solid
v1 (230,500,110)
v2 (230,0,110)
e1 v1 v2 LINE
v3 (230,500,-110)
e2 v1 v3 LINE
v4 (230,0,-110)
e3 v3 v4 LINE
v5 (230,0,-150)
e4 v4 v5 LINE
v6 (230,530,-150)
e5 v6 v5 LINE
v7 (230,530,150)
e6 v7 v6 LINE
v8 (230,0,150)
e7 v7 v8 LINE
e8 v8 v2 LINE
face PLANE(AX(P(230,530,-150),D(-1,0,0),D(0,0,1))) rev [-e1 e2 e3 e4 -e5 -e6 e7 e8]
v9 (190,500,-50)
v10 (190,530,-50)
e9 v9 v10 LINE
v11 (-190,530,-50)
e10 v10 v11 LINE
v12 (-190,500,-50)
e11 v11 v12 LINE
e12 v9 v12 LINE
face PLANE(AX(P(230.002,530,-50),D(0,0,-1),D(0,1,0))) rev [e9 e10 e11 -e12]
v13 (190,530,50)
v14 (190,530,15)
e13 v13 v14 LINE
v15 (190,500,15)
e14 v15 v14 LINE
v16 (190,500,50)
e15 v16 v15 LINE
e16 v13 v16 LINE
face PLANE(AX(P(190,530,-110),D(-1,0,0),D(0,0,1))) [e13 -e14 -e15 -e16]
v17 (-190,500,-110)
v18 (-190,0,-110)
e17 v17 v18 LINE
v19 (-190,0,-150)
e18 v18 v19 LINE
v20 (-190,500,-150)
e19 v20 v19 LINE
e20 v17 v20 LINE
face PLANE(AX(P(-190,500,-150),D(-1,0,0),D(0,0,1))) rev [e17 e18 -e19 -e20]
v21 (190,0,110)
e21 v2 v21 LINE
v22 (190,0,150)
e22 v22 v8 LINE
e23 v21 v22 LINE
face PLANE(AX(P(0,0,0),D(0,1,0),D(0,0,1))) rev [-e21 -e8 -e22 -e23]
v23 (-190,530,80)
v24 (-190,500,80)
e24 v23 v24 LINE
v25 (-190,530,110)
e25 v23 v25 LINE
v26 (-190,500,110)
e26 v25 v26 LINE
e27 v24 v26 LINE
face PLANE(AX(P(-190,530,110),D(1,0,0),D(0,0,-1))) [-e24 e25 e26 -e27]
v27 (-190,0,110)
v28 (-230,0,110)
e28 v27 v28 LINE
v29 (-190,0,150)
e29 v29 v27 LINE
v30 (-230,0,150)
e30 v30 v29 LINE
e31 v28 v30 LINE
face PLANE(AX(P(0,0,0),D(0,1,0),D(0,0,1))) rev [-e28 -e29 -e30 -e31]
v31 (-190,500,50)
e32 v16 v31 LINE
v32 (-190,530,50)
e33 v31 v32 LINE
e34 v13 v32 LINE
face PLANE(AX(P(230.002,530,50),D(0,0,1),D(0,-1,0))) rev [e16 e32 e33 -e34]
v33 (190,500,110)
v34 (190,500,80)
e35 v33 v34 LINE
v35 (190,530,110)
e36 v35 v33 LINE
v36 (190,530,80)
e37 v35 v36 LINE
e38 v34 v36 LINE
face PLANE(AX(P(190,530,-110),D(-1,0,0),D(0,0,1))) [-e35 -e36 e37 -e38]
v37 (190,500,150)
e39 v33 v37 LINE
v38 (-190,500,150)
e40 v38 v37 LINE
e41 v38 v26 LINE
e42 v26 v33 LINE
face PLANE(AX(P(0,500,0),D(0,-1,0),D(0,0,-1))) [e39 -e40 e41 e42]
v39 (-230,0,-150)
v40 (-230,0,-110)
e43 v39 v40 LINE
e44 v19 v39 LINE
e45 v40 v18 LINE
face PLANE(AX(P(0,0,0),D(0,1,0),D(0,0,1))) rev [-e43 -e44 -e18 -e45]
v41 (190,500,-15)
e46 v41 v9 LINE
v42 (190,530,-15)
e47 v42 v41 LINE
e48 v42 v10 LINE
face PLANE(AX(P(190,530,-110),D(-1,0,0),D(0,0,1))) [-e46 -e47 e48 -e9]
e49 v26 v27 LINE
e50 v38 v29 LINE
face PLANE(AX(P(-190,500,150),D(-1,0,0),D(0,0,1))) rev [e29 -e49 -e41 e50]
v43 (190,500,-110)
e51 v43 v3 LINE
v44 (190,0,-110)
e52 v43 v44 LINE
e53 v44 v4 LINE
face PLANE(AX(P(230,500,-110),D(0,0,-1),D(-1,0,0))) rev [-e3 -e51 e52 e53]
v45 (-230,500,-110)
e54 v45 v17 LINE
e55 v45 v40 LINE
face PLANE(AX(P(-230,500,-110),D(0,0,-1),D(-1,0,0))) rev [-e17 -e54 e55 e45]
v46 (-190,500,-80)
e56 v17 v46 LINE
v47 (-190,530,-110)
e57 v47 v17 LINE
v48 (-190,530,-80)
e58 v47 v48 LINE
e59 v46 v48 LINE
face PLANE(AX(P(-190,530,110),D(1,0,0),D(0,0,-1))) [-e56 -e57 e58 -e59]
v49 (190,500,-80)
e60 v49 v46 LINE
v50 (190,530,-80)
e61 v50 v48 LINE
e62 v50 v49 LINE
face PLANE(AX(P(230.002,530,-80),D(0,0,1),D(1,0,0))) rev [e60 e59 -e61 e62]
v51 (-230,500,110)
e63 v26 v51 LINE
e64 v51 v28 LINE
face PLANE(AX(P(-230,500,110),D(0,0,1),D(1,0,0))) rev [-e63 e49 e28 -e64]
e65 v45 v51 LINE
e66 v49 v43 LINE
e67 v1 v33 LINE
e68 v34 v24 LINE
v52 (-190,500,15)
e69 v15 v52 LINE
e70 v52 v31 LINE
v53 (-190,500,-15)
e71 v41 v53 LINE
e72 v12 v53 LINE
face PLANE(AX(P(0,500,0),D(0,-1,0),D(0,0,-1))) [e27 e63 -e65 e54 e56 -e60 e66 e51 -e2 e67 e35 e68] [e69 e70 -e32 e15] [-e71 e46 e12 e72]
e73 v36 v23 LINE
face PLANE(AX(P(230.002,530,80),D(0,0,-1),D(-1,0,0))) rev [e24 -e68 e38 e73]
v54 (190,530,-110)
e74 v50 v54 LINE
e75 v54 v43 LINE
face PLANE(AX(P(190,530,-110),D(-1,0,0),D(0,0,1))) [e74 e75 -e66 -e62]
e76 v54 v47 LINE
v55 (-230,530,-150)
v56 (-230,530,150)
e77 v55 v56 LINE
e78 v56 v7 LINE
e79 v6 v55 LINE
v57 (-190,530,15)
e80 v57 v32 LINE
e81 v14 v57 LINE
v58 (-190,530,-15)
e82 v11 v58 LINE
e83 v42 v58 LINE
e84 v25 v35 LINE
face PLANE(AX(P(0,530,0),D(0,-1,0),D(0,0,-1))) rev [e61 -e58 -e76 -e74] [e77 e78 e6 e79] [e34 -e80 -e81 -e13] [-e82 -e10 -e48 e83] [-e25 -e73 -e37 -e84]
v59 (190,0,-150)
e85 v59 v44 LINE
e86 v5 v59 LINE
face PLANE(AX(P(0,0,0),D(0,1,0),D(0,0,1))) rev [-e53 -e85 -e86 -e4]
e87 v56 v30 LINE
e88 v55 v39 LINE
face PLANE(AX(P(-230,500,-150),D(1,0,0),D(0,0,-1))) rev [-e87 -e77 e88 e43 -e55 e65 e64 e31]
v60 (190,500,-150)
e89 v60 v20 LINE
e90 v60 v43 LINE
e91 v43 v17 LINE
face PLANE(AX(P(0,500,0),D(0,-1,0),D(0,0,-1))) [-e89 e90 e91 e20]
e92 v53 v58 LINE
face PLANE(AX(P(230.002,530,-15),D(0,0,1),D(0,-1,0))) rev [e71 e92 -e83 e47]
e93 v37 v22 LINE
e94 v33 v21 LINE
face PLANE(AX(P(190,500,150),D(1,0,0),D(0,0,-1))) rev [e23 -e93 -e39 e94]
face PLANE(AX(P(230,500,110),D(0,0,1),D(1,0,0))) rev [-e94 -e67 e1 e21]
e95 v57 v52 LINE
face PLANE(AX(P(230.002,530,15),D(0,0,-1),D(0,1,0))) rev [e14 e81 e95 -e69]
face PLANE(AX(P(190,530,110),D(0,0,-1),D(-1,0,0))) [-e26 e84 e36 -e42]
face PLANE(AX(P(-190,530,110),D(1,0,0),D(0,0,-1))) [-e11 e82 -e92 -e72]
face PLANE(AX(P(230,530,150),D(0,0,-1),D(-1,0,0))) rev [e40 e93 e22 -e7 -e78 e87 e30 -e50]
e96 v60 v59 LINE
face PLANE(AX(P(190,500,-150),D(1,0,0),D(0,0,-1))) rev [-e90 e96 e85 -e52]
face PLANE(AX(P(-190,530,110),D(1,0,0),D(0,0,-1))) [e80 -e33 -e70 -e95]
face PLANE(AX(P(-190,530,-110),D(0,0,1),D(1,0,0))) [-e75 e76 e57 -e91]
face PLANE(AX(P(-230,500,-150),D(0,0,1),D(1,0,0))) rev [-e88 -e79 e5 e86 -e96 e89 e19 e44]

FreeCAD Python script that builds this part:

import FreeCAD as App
import Part
import Sketcher
Q = App.Units.Quantity


def add_polygon(sketch, points):
    """Adds a closed chain of lines whose ends are joined by coincident constraints."""
    first, n = sketch.GeometryCount, len(points)
    for a, b in zip(points, points[1:] + points[:1]):
        sketch.addGeometry(Part.LineSegment(App.Vector(*a, 0), App.Vector(*b, 0)), False)
    for i in range(n):
        sketch.addConstraint(Sketcher.Constraint("Coincident", first + i, 2, first + (i + 1) % n, 1))

doc = App.newDocument("Part")
body = doc.addObject("PartDesign::Body", "Body")

sketch1 = doc.addObject("Sketcher::SketchObject", "Sketch")
body.addObject(sketch1)
sketch1.AttachmentSupport = (doc.XZ_Plane, [""])
sketch1.MapMode = "FlatFace"
add_polygon(sketch1, [(-230, -150), (-230, -110), (-190, -110), (-190, -150)])
sketch1.addConstraint(Sketcher.Constraint("Vertical", 0))
sketch1.addConstraint(Sketcher.Constraint("Horizontal", 1))
sketch1.addConstraint(Sketcher.Constraint("Vertical", 2))
sketch1.addConstraint(Sketcher.Constraint("Horizontal", 3))
sketch1.addConstraint(Sketcher.Constraint("Equal", 3, 0))
sketch1.addConstraint(Sketcher.Constraint("DistanceX", 1, 1, 1, 2, Q("40 mm")))
sketch1.addConstraint(Sketcher.Constraint("DistanceX", 0, 2, -1, 1, Q("230 mm")))
sketch1.addConstraint(Sketcher.Constraint("DistanceY", 0, 2, -1, 1, Q("110 mm")))
pad1 = doc.addObject("PartDesign::Pad", "Pad")
body.addObject(pad1)
pad1.Profile = sketch1
pad1.Length = 500
pad1.Reversed = True
body2 = doc.addObject("PartDesign::Body", "Body001")

sketch2 = doc.addObject("Sketcher::SketchObject", "Sketch001")
body2.addObject(sketch2)
sketch2.AttachmentSupport = (doc.getObject("XZ_Plane001"), [""])
sketch2.MapMode = "FlatFace"
add_polygon(sketch2, [(-230, 110), (-230, 150), (-190, 150), (-190, 110)])
sketch2.addConstraint(Sketcher.Constraint("Vertical", 0))
sketch2.addConstraint(Sketcher.Constraint("Horizontal", 1))
sketch2.addConstraint(Sketcher.Constraint("Vertical", 2))
sketch2.addConstraint(Sketcher.Constraint("Horizontal", 3))
sketch2.addConstraint(Sketcher.Constraint("Equal", 3, 0))
sketch2.addConstraint(Sketcher.Constraint("DistanceX", 1, 1, 1, 2, Q("40 mm")))
sketch2.addConstraint(Sketcher.Constraint("DistanceX", 0, 2, -1, 1, Q("230 mm")))
sketch2.addConstraint(Sketcher.Constraint("DistanceY", -1, 1, 0, 2, Q("150 mm")))
pad2 = doc.addObject("PartDesign::Pad", "Pad001")
body2.addObject(pad2)
pad2.Profile = sketch2
pad2.Length = 500
pad2.Reversed = True
body3 = doc.addObject("PartDesign::Body", "Body002")

sketch3 = doc.addObject("Sketcher::SketchObject", "Sketch002")
body3.addObject(sketch3)
sketch3.AttachmentSupport = (doc.getObject("XZ_Plane002"), [""])
sketch3.MapMode = "FlatFace"
add_polygon(sketch3, [(190, 110), (190, 150), (230, 150), (230, 110)])
sketch3.addConstraint(Sketcher.Constraint("Vertical", 0))
sketch3.addConstraint(Sketcher.Constraint("Horizontal", 1))
sketch3.addConstraint(Sketcher.Constraint("Vertical", 2))
sketch3.addConstraint(Sketcher.Constraint("Horizontal", 3))
sketch3.addConstraint(Sketcher.Constraint("Equal", 3, 0))
sketch3.addConstraint(Sketcher.Constraint("DistanceX", 1, 1, 1, 2, Q("40 mm")))
sketch3.addConstraint(Sketcher.Constraint("DistanceX", -1, 1, 0, 2, Q("190 mm")))
sketch3.addConstraint(Sketcher.Constraint("DistanceY", -1, 1, 0, 2, Q("150 mm")))
pad3 = doc.addObject("PartDesign::Pad", "Pad002")
body3.addObject(pad3)
pad3.Profile = sketch3
pad3.Length = 500
pad3.Reversed = True
body4 = doc.addObject("PartDesign::Body", "Body003")

sketch4 = doc.addObject("Sketcher::SketchObject", "Sketch003")
body4.addObject(sketch4)
sketch4.AttachmentSupport = (doc.getObject("XZ_Plane003"), [""])
sketch4.MapMode = "FlatFace"
add_polygon(sketch4, [(190, -150), (190, -110), (230, -110), (230, -150)])
sketch4.addConstraint(Sketcher.Constraint("Vertical", 0))
sketch4.addConstraint(Sketcher.Constraint("Horizontal", 1))
sketch4.addConstraint(Sketcher.Constraint("Vertical", 2))
sketch4.addConstraint(Sketcher.Constraint("Horizontal", 3))
sketch4.addConstraint(Sketcher.Constraint("Equal", 3, 0))
sketch4.addConstraint(Sketcher.Constraint("DistanceX", 1, 1, 1, 2, Q("40 mm")))
sketch4.addConstraint(Sketcher.Constraint("DistanceX", -1, 1, 0, 2, Q("190 mm")))
sketch4.addConstraint(Sketcher.Constraint("DistanceY", 0, 2, -1, 1, Q("110 mm")))
pad4 = doc.addObject("PartDesign::Pad", "Pad003")
body4.addObject(pad4)
pad4.Profile = sketch4
pad4.Length = 500
pad4.Reversed = True
body.AllowCompound = True
doc.recompute()

boolean = doc.addObject("PartDesign::Boolean", "Boolean")
body.addObject(boolean)
boolean.Type = "Fuse"
boolean.addObjects([body2])
doc.recompute()

boolean2 = doc.addObject("PartDesign::Boolean", "Boolean001")
body.addObject(boolean2)
boolean2.Type = "Fuse"
boolean2.addObjects([body3])
doc.recompute()

boolean3 = doc.addObject("PartDesign::Boolean", "Boolean002")
body.addObject(boolean3)
boolean3.Type = "Fuse"
boolean3.addObjects([body4])

sketch5 = doc.addObject("Sketcher::SketchObject", "Sketch004")
body.addObject(sketch5)
sketch5.AttachmentSupport = (doc.XZ_Plane, [""])
sketch5.MapMode = "FlatFace"
sketch5.AttachmentOffset = App.Placement(App.Vector(0, 0, -500), App.Rotation())
add_polygon(sketch5, [(-230, -150), (-230, 150), (230, 150), (230, -150)])
add_polygon(sketch5, [(190, 110), (-190, 110), (-190, -110), (190, -110)])
sketch5.addConstraint(Sketcher.Constraint("Vertical", 0))
sketch5.addConstraint(Sketcher.Constraint("Horizontal", 1))
sketch5.addConstraint(Sketcher.Constraint("Vertical", 2))
sketch5.addConstraint(Sketcher.Constraint("Horizontal", 3))
sketch5.addConstraint(Sketcher.Constraint("Horizontal", 4))
sketch5.addConstraint(Sketcher.Constraint("Vertical", 5))
sketch5.addConstraint(Sketcher.Constraint("Horizontal", 6))
sketch5.addConstraint(Sketcher.Constraint("Vertical", 7))
sketch5.addConstraint(Sketcher.Constraint("Symmetric", 0, 2, 2, 2, -1, 1))
sketch5.addConstraint(Sketcher.Constraint("Symmetric", 4, 2, 6, 2, -1, 1))
sketch5.addConstraint(Sketcher.Constraint("DistanceX", 1, 1, 1, 2, Q("460 mm")))
sketch5.addConstraint(Sketcher.Constraint("DistanceX", 4, 2, 4, 1, Q("380 mm")))
sketch5.addConstraint(Sketcher.Constraint("DistanceY", 0, 1, 0, 2, Q("300 mm")))
sketch5.addConstraint(Sketcher.Constraint("DistanceY", 5, 2, 5, 1, Q("220 mm")))
pad5 = doc.addObject("PartDesign::Pad", "Pad004")
body.addObject(pad5)
pad5.Profile = sketch5
pad5.Length = 30
pad5.Reversed = True

sketch6 = doc.addObject("Sketcher::SketchObject", "Sketch005")
body.addObject(sketch6)
sketch6.AttachmentSupport = (doc.YZ_Plane, [""])
sketch6.MapMode = "FlatFace"
sketch6.AttachmentOffset = App.Placement(App.Vector(0, 0, -190), App.Rotation())
add_polygon(sketch6, [(530, 80), (500, 80), (500, 50), (530, 50)])
sketch6.addConstraint(Sketcher.Constraint("Horizontal", 0))
sketch6.addConstraint(Sketcher.Constraint("Vertical", 1))
sketch6.addConstraint(Sketcher.Constraint("Horizontal", 2))
sketch6.addConstraint(Sketcher.Constraint("Vertical", 3))
sketch6.addConstraint(Sketcher.Constraint("Equal", 2, 1))
sketch6.addConstraint(Sketcher.Constraint("DistanceX", 0, 2, 0, 1, Q("30 mm")))
sketch6.addConstraint(Sketcher.Constraint("DistanceX", -1, 1, 0, 2, Q("500 mm")))
sketch6.addConstraint(Sketcher.Constraint("DistanceY", -1, 1, 0, 2, Q("80 mm")))
pad6 = doc.addObject("PartDesign::Pad", "Pad005")
body.addObject(pad6)
pad6.Profile = sketch6
pad6.Type = "UpToFirst"

sketch7 = doc.addObject("Sketcher::SketchObject", "Sketch006")
body.addObject(sketch7)
sketch7.AttachmentSupport = (doc.YZ_Plane, [""])
sketch7.MapMode = "FlatFace"
sketch7.AttachmentOffset = App.Placement(App.Vector(0, 0, -190), App.Rotation())
add_polygon(sketch7, [(530, 15), (500, 15), (500, -15), (530, -15)])
sketch7.addConstraint(Sketcher.Constraint("Horizontal", 0))
sketch7.addConstraint(Sketcher.Constraint("Vertical", 1))
sketch7.addConstraint(Sketcher.Constraint("Horizontal", 2))
sketch7.addConstraint(Sketcher.Constraint("Vertical", 3))
sketch7.addConstraint(Sketcher.Constraint("Equal", 2, 1))
sketch7.addConstraint(Sketcher.Constraint("DistanceX", 0, 2, 0, 1, Q("30 mm")))
sketch7.addConstraint(Sketcher.Constraint("DistanceX", -1, 1, 0, 2, Q("500 mm")))
sketch7.addConstraint(Sketcher.Constraint("DistanceY", -1, 1, 0, 2, Q("15 mm")))
pad7 = doc.addObject("PartDesign::Pad", "Pad006")
body.addObject(pad7)
pad7.Profile = sketch7
pad7.Type = "UpToFirst"

sketch8 = doc.addObject("Sketcher::SketchObject", "Sketch007")
body.addObject(sketch8)
sketch8.AttachmentSupport = (doc.YZ_Plane, [""])
sketch8.MapMode = "FlatFace"
sketch8.AttachmentOffset = App.Placement(App.Vector(0, 0, -190), App.Rotation())
add_polygon(sketch8, [(530, -50), (500, -50), (500, -80), (530, -80)])
sketch8.addConstraint(Sketcher.Constraint("Horizontal", 0))
sketch8.addConstraint(Sketcher.Constraint("Vertical", 1))
sketch8.addConstraint(Sketcher.Constraint("Horizontal", 2))
sketch8.addConstraint(Sketcher.Constraint("Vertical", 3))
sketch8.addConstraint(Sketcher.Constraint("Equal", 2, 1))
sketch8.addConstraint(Sketcher.Constraint("DistanceX", 0, 2, 0, 1, Q("30 mm")))
sketch8.addConstraint(Sketcher.Constraint("DistanceX", -1, 1, 0, 2, Q("500 mm")))
sketch8.addConstraint(Sketcher.Constraint("DistanceY", 0, 2, -1, 1, Q("50 mm")))
pad8 = doc.addObject("PartDesign::Pad", "Pad007")
body.addObject(pad8)
pad8.Profile = sketch8
pad8.Type = "UpToFirst"

doc.recompute()
